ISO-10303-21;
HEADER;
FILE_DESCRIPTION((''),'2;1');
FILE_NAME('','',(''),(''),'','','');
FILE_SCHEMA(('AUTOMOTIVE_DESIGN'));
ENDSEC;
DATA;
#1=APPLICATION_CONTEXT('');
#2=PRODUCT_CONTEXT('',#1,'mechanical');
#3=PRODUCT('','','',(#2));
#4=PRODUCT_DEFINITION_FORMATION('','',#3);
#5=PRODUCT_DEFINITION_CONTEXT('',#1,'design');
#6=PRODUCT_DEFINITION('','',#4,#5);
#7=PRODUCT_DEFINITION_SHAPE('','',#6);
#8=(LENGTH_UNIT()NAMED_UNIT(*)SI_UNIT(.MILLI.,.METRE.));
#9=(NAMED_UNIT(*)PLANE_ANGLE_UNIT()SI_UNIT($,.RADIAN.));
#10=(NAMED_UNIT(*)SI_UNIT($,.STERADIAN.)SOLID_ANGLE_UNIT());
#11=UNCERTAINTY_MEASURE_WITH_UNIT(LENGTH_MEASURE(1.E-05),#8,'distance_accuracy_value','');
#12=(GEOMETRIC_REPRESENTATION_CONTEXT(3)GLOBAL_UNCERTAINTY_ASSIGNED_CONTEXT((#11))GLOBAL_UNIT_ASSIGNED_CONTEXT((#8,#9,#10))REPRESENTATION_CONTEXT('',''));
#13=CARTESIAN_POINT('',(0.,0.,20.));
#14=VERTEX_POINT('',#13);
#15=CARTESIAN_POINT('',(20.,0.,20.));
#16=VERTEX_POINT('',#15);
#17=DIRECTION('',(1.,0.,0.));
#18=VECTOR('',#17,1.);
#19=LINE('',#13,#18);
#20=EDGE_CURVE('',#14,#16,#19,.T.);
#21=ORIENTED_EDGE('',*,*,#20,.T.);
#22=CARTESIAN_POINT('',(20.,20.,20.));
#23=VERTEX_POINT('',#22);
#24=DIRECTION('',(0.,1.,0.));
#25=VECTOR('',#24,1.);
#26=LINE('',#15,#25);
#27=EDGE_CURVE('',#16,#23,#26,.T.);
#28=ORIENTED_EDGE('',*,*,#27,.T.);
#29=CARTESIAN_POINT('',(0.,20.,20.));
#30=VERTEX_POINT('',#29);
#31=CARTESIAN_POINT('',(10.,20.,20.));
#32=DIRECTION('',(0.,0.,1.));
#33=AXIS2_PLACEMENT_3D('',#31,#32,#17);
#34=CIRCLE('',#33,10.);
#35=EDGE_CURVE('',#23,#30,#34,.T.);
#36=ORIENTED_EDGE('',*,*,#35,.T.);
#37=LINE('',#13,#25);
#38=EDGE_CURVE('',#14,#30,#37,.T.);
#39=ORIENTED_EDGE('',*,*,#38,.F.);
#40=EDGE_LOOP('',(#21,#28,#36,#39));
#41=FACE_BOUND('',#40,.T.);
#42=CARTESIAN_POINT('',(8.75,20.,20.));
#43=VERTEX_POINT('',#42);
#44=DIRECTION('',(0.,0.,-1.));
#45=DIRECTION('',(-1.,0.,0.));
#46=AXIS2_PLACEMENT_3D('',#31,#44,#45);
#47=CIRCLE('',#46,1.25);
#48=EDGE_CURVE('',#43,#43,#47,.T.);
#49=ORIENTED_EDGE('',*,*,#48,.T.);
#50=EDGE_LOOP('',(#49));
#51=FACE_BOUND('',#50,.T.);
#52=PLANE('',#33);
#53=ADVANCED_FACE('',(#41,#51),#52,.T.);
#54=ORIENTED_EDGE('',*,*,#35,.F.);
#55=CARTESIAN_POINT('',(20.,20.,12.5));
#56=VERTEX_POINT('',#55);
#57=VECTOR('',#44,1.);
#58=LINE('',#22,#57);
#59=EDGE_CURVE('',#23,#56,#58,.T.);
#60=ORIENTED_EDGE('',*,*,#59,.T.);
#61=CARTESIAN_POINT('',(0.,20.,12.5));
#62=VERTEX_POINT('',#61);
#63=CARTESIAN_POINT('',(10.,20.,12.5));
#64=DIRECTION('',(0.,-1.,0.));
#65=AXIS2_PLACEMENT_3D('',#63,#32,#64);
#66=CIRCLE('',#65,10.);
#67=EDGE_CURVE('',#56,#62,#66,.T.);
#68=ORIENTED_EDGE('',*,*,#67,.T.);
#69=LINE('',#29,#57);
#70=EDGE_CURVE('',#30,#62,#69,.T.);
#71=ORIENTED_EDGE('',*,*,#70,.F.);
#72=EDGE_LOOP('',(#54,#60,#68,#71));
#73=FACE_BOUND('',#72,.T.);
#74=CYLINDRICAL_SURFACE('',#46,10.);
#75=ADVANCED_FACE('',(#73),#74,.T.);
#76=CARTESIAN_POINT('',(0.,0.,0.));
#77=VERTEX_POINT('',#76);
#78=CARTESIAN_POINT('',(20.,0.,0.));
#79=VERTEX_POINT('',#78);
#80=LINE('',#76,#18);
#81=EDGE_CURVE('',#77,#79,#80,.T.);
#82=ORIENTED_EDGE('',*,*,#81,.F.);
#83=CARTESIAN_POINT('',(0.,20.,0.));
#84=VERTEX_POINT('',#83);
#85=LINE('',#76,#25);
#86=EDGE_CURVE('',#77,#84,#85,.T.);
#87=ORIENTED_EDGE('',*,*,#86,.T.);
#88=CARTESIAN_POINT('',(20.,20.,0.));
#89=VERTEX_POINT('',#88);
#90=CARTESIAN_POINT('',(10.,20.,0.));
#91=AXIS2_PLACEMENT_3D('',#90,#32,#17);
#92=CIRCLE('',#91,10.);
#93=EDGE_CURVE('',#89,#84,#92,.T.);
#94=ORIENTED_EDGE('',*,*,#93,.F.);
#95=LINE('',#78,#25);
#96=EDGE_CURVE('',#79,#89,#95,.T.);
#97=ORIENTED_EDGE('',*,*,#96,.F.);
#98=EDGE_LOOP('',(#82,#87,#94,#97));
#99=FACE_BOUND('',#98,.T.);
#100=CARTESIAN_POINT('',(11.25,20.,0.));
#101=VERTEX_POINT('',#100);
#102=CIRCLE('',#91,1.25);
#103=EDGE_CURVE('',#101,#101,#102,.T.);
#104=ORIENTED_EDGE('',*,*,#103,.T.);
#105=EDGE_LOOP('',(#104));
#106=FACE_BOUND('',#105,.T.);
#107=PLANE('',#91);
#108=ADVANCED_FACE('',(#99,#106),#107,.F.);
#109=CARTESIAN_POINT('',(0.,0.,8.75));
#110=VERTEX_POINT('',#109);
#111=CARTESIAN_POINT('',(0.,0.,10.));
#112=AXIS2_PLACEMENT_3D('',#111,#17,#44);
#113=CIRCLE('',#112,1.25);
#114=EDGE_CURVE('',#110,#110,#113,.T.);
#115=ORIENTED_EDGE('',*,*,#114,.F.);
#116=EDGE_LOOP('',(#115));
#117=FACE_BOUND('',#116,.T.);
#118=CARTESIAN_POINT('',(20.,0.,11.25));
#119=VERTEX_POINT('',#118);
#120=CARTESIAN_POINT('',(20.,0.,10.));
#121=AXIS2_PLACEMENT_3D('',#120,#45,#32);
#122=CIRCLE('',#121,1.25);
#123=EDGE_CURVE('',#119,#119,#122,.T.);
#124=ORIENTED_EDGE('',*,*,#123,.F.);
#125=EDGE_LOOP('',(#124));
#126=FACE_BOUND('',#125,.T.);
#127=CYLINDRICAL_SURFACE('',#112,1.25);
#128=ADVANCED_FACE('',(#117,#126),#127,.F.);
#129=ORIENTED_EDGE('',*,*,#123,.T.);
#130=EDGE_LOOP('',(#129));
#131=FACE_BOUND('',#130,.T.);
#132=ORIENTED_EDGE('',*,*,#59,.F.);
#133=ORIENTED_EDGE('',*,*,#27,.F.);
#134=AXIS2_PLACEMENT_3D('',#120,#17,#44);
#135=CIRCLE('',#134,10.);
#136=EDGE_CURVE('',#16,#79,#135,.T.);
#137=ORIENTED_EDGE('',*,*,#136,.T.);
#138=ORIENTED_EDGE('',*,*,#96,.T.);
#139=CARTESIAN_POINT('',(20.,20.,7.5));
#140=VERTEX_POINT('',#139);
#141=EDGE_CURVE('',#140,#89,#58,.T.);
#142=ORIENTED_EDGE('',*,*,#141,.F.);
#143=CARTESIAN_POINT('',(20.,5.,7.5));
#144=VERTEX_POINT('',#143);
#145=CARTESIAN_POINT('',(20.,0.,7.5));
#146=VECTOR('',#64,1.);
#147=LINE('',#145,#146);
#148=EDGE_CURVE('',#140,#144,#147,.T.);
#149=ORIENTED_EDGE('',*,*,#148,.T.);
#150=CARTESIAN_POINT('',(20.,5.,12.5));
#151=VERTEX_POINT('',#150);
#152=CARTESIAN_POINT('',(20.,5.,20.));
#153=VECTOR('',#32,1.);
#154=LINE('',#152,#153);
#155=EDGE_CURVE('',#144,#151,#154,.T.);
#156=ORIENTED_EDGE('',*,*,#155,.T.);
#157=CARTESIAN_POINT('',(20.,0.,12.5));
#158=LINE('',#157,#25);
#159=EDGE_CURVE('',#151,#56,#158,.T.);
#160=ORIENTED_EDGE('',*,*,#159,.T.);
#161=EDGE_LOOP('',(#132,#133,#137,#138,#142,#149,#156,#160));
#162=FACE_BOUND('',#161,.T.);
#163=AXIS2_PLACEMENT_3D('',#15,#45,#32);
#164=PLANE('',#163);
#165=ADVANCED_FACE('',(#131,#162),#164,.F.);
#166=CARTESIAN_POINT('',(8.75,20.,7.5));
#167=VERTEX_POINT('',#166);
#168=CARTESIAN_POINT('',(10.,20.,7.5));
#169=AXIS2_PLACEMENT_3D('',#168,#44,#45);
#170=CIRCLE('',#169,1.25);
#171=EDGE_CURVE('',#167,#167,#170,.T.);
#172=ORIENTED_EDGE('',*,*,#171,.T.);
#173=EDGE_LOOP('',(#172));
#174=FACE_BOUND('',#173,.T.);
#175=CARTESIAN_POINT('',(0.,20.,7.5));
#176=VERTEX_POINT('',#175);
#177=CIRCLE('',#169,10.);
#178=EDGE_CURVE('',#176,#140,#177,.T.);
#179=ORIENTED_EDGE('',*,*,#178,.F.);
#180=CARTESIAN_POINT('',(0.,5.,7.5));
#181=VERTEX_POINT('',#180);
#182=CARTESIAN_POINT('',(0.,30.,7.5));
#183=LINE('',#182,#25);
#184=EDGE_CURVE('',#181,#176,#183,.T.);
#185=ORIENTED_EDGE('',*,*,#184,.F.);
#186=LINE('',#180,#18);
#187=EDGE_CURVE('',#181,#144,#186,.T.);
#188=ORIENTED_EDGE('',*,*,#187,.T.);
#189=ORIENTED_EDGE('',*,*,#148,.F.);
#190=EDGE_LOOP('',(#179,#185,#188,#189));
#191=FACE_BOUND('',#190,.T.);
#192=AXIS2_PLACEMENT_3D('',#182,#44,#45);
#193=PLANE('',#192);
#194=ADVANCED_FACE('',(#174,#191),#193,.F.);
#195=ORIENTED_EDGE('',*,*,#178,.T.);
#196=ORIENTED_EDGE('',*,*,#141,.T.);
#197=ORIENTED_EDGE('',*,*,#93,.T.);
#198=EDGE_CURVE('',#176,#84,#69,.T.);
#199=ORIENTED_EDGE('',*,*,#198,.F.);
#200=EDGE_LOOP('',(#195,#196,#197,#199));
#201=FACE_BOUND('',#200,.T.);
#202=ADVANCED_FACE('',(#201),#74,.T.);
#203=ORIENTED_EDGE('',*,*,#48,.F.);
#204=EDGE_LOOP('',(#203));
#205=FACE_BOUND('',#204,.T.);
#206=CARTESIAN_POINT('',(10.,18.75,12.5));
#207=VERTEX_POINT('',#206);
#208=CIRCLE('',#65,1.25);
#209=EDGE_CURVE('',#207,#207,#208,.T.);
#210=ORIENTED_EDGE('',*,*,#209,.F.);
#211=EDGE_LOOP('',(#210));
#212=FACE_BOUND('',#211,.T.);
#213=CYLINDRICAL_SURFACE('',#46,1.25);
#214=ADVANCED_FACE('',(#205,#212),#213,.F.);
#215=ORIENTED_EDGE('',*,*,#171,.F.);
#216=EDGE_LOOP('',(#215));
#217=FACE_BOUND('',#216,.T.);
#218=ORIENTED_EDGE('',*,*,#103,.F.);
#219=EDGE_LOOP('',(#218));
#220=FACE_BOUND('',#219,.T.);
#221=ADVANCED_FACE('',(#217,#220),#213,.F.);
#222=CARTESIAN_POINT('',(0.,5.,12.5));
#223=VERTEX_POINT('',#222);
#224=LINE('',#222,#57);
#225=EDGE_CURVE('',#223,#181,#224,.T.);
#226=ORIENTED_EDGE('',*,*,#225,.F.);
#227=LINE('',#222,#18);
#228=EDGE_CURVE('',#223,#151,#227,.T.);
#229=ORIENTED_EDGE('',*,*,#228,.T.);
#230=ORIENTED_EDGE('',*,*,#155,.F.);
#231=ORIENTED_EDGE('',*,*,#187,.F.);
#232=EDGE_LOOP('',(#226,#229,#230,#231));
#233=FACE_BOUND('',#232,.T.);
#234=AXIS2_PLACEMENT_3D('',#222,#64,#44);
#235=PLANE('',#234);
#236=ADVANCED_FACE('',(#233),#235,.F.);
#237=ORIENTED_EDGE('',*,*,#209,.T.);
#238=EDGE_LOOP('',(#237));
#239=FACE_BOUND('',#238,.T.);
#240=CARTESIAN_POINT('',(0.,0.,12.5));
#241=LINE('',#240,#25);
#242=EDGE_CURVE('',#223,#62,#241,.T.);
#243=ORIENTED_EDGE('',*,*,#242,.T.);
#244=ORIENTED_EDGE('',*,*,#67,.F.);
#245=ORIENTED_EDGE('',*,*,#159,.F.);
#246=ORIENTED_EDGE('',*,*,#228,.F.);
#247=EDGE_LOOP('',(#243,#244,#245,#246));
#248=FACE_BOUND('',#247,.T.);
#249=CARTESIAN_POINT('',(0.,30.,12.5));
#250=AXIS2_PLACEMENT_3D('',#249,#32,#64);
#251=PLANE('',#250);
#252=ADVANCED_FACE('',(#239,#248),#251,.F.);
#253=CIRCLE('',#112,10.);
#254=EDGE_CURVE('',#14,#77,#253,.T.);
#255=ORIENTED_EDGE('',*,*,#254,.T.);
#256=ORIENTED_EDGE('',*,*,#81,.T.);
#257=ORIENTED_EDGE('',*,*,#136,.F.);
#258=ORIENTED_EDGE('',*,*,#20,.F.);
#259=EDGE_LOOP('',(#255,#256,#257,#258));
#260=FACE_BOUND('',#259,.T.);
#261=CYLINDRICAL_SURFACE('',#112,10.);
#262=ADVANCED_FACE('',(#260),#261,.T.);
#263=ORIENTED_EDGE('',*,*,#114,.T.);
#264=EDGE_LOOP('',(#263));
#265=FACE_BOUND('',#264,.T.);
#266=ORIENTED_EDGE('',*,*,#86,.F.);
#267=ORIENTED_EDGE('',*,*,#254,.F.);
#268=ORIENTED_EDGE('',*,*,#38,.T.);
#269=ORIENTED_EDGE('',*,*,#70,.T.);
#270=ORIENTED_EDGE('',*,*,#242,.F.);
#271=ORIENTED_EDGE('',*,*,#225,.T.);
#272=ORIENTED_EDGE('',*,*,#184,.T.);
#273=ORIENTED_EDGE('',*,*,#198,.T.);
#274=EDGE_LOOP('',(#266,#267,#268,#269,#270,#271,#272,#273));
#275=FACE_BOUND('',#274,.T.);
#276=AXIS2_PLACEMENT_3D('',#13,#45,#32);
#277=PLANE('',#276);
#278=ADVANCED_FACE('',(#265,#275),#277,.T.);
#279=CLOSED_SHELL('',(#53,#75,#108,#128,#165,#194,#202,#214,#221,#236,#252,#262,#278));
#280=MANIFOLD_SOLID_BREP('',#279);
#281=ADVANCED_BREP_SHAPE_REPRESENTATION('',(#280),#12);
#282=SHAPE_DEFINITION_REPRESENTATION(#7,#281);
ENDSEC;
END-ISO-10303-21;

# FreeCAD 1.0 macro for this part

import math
import FreeCAD as App
import Part
import Sketcher
from FreeCAD import Vector

doc = App.newDocument("Part")
body = doc.addObject("PartDesign::Body", "Body")

# Sketch on XY plane
sketch1 = body.newObject("Sketcher::SketchObject", "Sketch")
sketch1.AttachmentSupport = (doc.getObject("XY_Plane"), [""])
sketch1.MapMode = "FlatFace"
sketch1.addGeometry([
    Part.LineSegment(Vector(0, 0, 0), Vector(20, 0, 0)),
    Part.LineSegment(Vector(20, 0, 0), Vector(20, 20, 0)),
    Part.ArcOfCircle(Part.Circle(Vector(10, 20, 0), Vector(0, 0, 1), 10), math.radians(0), math.radians(180)),
    Part.LineSegment(Vector(0, 20, 0), Vector(0, 0, 0)),
], False)
sketch1.addConstraint([
    Sketcher.Constraint("Coincident", 0, 2, 1, 1),
    Sketcher.Constraint("Tangent", 1, 2, 2, 1),
    Sketcher.Constraint("Tangent", 2, 2, 3, 1),
    Sketcher.Constraint("Coincident", 3, 2, 0, 1),
    Sketcher.Constraint("Horizontal", 0),
    Sketcher.Constraint("Vertical", 1),
    Sketcher.Constraint("Vertical", 3),
    Sketcher.Constraint("Coincident", 3, 2, -1, 1),
    Sketcher.Constraint("Equal", 0, 1),
    Sketcher.Constraint("Radius", 2, 10.0),
])
pad1 = body.newObject("PartDesign::Pad", "Pad")
pad1.Profile = sketch1
pad1.Length = 20

# Sketch on YZ plane
sketch2 = body.newObject("Sketcher::SketchObject", "Sketch001")
sketch2.AttachmentSupport = (doc.getObject("YZ_Plane"), [""])
sketch2.MapMode = "FlatFace"
sketch2.AttachmentOffset = App.Placement(Vector(0, 0, 20), App.Rotation())
sketch2.addGeometry([
    Part.LineSegment(Vector(30, 12, 0), Vector(5, 12, 0)),
    Part.LineSegment(Vector(5, 12, 0), Vector(5, 8, 0)),
    Part.LineSegment(Vector(5, 8, 0), Vector(30, 8, 0)),
    Part.LineSegment(Vector(30, 8, 0), Vector(30, 12, 0)),
], False)
sketch2.addConstraint([
    Sketcher.Constraint("Coincident", 0, 2, 1, 1),
    Sketcher.Constraint("Coincident", 1, 2, 2, 1),
    Sketcher.Constraint("Coincident", 2, 2, 3, 1),
    Sketcher.Constraint("Coincident", 3, 2, 0, 1),
    Sketcher.Constraint("Horizontal", 0),
    Sketcher.Constraint("Vertical", 1),
    Sketcher.Constraint("Horizontal", 2),
    Sketcher.Constraint("Vertical", 3),
    Sketcher.Constraint("DistanceX", 0, 2, 0, 1, 25.0),
    Sketcher.Constraint("DistanceY", 1, 2, 1, 1, 5.0),
    Sketcher.Constraint("DistanceX", -1, 1, 0, 2, 5.0),
    Sketcher.Constraint("DistanceY", -1, 1, 0, 2, 12.5),
])
pocket1 = body.newObject("PartDesign::Pocket", "Pocket")
pocket1.Profile = sketch2
pocket1.Type = "ThroughAll"
pocket1.Midplane = True

# Sketch on XY plane
sketch3 = body.newObject("Sketcher::SketchObject", "Sketch002")
sketch3.AttachmentSupport = (doc.getObject("XY_Plane"), [""])
sketch3.MapMode = "FlatFace"
sketch3.addGeometry(Part.Circle(Vector(10, 20, 0), Vector(0, 0, 1), 1.2), False)
sketch3.addConstraint([
    Sketcher.Constraint("Diameter", 0, 2.5),
    Sketcher.Constraint("DistanceX", -1, 1, 0, 3, 10.0),
    Sketcher.Constraint("DistanceY", -1, 1, 0, 3, 20.0),
])
pocket2 = body.newObject("PartDesign::Pocket", "Pocket001")
pocket2.Profile = sketch3
pocket2.Type = "ThroughAll"
pocket2.Midplane = True

# Sketch on YZ plane
sketch4 = body.newObject("Sketcher::SketchObject", "Sketch003")
sketch4.AttachmentSupport = (doc.getObject("YZ_Plane"), [""])
sketch4.MapMode = "FlatFace"
sketch4.AttachmentOffset = App.Placement(Vector(0, 0, 20), App.Rotation())
sketch4.addGeometry([
    Part.LineSegment(Vector(0, 0, 0), Vector(0, 20, 0)),
    Part.ArcOfCircle(Part.Circle(Vector(0, 10, 0), Vector(0, 0, 1), 10), math.radians(90), math.radians(270)),
], False)
sketch4.addConstraint([
    Sketcher.Constraint("Coincident", 0, 1, 1, 2),
    Sketcher.Constraint("Coincident", 1, 1, 0, 2),
    Sketcher.Constraint("Vertical", 0),
    Sketcher.Constraint("Coincident", 0, 1, -1, 1),
    Sketcher.Constraint("PointOnObject", 1, 3, -2),
    Sketcher.Constraint("Radius", 1, 10.0),
])
pad2 = body.newObject("PartDesign::Pad", "Pad001")
pad2.Profile = sketch4
pad2.Length = 20
pad2.Reversed = True

# Sketch on YZ plane
sketch5 = body.newObject("Sketcher::SketchObject", "Sketch004")
sketch5.AttachmentSupport = (doc.getObject("YZ_Plane"), [""])
sketch5.MapMode = "FlatFace"
sketch5.AttachmentOffset = App.Placement(Vector(0, 0, 20), App.Rotation())
sketch5.addGeometry(Part.Circle(Vector(0, 10, 0), Vector(0, 0, 1), 1.2), False)
sketch5.addConstraint([
    Sketcher.Constraint("PointOnObject", 0, 3, -2),
    Sketcher.Constraint("Diameter", 0, 2.5),
    Sketcher.Constraint("DistanceY", -1, 1, 0, 3, 10.0),
])
pocket3 = body.newObject("PartDesign::Pocket", "Pocket002")
pocket3.Profile = sketch5
pocket3.Type = "ThroughAll"
pocket3.Midplane = True

doc.recompute()
